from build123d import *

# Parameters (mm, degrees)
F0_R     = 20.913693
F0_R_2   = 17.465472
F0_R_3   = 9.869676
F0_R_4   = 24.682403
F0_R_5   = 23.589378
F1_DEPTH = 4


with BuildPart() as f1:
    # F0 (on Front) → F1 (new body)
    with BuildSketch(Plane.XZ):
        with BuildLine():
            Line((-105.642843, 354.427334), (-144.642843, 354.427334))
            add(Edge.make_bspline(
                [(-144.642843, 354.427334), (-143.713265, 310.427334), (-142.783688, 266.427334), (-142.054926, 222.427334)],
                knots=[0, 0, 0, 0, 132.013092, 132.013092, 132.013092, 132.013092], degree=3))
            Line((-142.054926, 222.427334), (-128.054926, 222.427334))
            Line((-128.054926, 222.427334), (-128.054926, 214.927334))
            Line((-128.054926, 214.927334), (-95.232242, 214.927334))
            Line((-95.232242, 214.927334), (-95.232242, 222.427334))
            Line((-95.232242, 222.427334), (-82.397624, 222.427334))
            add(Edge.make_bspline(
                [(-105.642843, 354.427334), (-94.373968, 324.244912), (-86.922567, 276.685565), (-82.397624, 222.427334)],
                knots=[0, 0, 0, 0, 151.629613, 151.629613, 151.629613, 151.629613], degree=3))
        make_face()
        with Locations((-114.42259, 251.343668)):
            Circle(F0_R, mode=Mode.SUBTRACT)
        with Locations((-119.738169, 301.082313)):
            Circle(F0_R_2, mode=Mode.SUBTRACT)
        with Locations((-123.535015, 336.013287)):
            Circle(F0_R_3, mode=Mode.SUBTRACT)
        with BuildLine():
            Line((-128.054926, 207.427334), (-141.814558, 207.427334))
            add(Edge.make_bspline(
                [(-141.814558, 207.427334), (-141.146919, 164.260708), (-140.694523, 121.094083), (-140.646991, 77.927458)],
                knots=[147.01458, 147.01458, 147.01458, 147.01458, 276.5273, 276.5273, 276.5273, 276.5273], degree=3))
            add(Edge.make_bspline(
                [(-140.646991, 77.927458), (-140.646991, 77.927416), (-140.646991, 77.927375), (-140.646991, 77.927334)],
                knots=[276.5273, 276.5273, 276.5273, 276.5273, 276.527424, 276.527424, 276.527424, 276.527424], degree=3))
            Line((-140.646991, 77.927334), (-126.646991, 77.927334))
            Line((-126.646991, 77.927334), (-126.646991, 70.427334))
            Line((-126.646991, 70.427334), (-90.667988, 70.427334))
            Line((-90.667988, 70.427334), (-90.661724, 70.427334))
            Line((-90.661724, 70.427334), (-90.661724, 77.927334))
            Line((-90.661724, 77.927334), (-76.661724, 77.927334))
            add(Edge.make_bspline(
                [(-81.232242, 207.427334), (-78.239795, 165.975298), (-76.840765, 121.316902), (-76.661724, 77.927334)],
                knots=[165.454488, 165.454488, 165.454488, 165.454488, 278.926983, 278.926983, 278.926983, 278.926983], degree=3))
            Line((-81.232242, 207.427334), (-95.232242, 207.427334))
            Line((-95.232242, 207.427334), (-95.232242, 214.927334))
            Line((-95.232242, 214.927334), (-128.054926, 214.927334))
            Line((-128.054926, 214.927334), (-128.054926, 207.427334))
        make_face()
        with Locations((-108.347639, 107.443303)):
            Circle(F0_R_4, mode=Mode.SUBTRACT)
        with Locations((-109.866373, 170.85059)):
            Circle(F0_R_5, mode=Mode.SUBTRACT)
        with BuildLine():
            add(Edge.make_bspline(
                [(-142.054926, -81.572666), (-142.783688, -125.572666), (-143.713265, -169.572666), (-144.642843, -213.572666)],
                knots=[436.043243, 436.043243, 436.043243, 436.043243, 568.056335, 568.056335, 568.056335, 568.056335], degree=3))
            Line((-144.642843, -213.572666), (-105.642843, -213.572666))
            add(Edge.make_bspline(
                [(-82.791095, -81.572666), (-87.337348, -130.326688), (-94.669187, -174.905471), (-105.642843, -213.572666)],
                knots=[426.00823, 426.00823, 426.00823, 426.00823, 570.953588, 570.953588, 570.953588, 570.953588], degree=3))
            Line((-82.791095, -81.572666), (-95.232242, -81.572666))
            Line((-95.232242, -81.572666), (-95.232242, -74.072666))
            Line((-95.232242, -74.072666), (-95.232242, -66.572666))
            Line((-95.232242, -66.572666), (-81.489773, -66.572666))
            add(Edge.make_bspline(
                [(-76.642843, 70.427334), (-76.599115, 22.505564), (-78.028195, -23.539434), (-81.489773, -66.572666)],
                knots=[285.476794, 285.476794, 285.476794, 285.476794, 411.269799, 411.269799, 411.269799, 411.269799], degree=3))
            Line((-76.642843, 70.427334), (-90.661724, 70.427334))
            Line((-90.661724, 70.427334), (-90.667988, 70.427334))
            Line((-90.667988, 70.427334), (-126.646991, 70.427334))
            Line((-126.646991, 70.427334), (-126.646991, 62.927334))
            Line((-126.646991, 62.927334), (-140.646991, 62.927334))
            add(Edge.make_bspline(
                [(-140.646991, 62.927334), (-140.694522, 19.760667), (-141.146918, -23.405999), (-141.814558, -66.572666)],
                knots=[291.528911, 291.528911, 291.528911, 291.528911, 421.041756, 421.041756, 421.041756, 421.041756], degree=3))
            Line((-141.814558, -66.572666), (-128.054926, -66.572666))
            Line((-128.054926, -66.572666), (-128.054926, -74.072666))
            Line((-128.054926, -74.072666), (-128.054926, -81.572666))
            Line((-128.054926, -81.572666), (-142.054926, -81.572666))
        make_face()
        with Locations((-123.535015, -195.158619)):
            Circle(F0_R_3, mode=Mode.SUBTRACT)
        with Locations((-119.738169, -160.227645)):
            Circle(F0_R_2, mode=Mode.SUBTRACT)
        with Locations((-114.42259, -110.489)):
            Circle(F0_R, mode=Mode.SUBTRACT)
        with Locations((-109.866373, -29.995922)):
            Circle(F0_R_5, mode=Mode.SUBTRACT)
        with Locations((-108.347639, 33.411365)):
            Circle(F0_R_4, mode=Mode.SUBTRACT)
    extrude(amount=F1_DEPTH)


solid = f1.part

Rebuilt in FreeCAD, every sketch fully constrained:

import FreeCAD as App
import Part
import Sketcher
from FreeCAD import Vector
Q = App.Units.Quantity

doc = App.newDocument("Part")
body = doc.addObject("PartDesign::Body", "Body")

sketch1 = doc.addObject("Sketcher::SketchObject", "Sketch")
body.addObject(sketch1)
sketch1.AttachmentSupport = (doc.XZ_Plane, [""])
sketch1.MapMode = "FlatFace"
sketch1.addGeometry([
    Part.LineSegment(Vector(-105.642843, 354.427334, 0), Vector(-144.642843, 354.427334, 0)),
    Part.BSplineCurve([Vector(-144.642843, 354.427334, 0), Vector(-143.713265, 310.427334, 0), Vector(-142.783688, 266.427334, 0), Vector(-142.054926, 222.427334, 0)], [4, 4], [0, 132.013092], False, 3, [1, 1, 1, 1], False),
    Part.LineSegment(Vector(-142.054926, 222.427334, 0), Vector(-128.054926, 222.427334, 0)),
    Part.LineSegment(Vector(-128.054926, 222.427334, 0), Vector(-128.054926, 207.427334, 0)),
    Part.LineSegment(Vector(-128.054926, 207.427334, 0), Vector(-141.814558, 207.427334, 0)),
    Part.BSplineCurve([Vector(-141.814558, 207.427334, 0), Vector(-141.146919, 164.260708, 0), Vector(-140.694523, 121.094083, 0), Vector(-140.646991, 77.927458, 0)], [4, 4], [147.01458, 276.5273], False, 3, [1, 1, 1, 1], False),
    Part.BSplineCurve([Vector(-140.646991, 77.927458, 0), Vector(-140.646991, 77.927416, 0), Vector(-140.646991, 77.927375, 0), Vector(-140.646991, 77.927334, 0)], [4, 4], [276.5273, 276.527424], False, 3, [1, 1, 1, 1], False),
    Part.LineSegment(Vector(-140.646991, 77.927334, 0), Vector(-126.646991, 77.927334, 0)),
    Part.LineSegment(Vector(-126.646991, 77.927334, 0), Vector(-126.646991, 62.927334, 0)),
    Part.LineSegment(Vector(-126.646991, 62.927334, 0), Vector(-140.646991, 62.927334, 0)),
    Part.BSplineCurve([Vector(-140.646991, 62.927334, 0), Vector(-140.694522, 19.760667, 0), Vector(-141.146918, -23.405999, 0), Vector(-141.814558, -66.572666, 0)], [4, 4], [291.528911, 421.041756], False, 3, [1, 1, 1, 1], False),
    Part.LineSegment(Vector(-141.814558, -66.572666, 0), Vector(-128.054926, -66.572666, 0)),
    Part.LineSegment(Vector(-128.054926, -66.572666, 0), Vector(-128.054926, -81.572666, 0)),
    Part.LineSegment(Vector(-128.054926, -81.572666, 0), Vector(-142.054926, -81.572666, 0)),
    Part.BSplineCurve([Vector(-142.054926, -81.572666, 0), Vector(-142.783688, -125.572666, 0), Vector(-143.713265, -169.572666, 0), Vector(-144.642843, -213.572666, 0)], [4, 4], [436.043243, 568.056335], False, 3, [1, 1, 1, 1], False),
    Part.LineSegment(Vector(-144.642843, -213.572666, 0), Vector(-105.642843, -213.572666, 0)),
    Part.BSplineCurve([Vector(-82.791095, -81.572666, 0), Vector(-87.337348, -130.326688, 0), Vector(-94.669187, -174.905471, 0), Vector(-105.642843, -213.572666, 0)], [4, 4], [426.00823, 570.953588], False, 3, [1, 1, 1, 1], False),
    Part.LineSegment(Vector(-82.791095, -81.572666, 0), Vector(-95.232242, -81.572666, 0)),
    Part.LineSegment(Vector(-95.232242, -81.572666, 0), Vector(-95.232242, -66.572666, 0)),
    Part.LineSegment(Vector(-95.232242, -66.572666, 0), Vector(-81.489773, -66.572666, 0)),
    Part.BSplineCurve([Vector(-76.642843, 70.427334, 0), Vector(-76.599115, 22.505564, 0), Vector(-78.028195, -23.539434, 0), Vector(-81.489773, -66.572666, 0)], [4, 4], [285.476794, 411.269799], False, 3, [1, 1, 1, 1], False),
    Part.LineSegment(Vector(-76.642843, 70.427334, 0), Vector(-90.661724, 70.427334, 0)),
    Part.LineSegment(Vector(-90.661724, 70.427334, 0), Vector(-90.661724, 77.927334, 0)),
    Part.LineSegment(Vector(-90.661724, 77.927334, 0), Vector(-76.661724, 77.927334, 0)),
    Part.BSplineCurve([Vector(-81.232242, 207.427334, 0), Vector(-78.239795, 165.975298, 0), Vector(-76.840765, 121.316902, 0), Vector(-76.661724, 77.927334, 0)], [4, 4], [165.454488, 278.926983], False, 3, [1, 1, 1, 1], False),
    Part.LineSegment(Vector(-81.232242, 207.427334, 0), Vector(-95.232242, 207.427334, 0)),
    Part.LineSegment(Vector(-95.232242, 207.427334, 0), Vector(-95.232242, 222.427334, 0)),
    Part.LineSegment(Vector(-95.232242, 222.427334, 0), Vector(-82.397624, 222.427334, 0)),
    Part.BSplineCurve([Vector(-105.642843, 354.427334, 0), Vector(-94.373968, 324.244912, 0), Vector(-86.922567, 276.685565, 0), Vector(-82.397624, 222.427334, 0)], [4, 4], [0, 151.629613], False, 3, [1, 1, 1, 1], False),
    Part.Circle(Vector(-123.535015, -195.158619, 0), Vector(0, 0, 1), 9.869676),
    Part.Circle(Vector(-119.738169, -160.227645, 0), Vector(0, 0, 1), 17.465472),
    Part.Circle(Vector(-114.42259, -110.489, 0), Vector(0, 0, 1), 20.913693),
    Part.Circle(Vector(-109.866373, -29.995922, 0), Vector(0, 0, 1), 23.589378),
    Part.Circle(Vector(-108.347639, 33.411365, 0), Vector(0, 0, 1), 24.682403),
    Part.Circle(Vector(-114.42259, 251.343668, 0), Vector(0, 0, 1), 20.913693),
    Part.Circle(Vector(-119.738169, 301.082313, 0), Vector(0, 0, 1), 17.465472),
    Part.Circle(Vector(-123.535015, 336.013287, 0), Vector(0, 0, 1), 9.869676),
    Part.Circle(Vector(-108.347639, 107.443303, 0), Vector(0, 0, 1), 24.682403),
    Part.Circle(Vector(-109.866373, 170.85059, 0), Vector(0, 0, 1), 23.589378),
], False)
sketch1.addConstraint([
    Sketcher.Constraint("Block", 1),
    Sketcher.Constraint("Block", 5),
    Sketcher.Constraint("Block", 6),
    Sketcher.Constraint("Block", 10),
    Sketcher.Constraint("Block", 14),
    Sketcher.Constraint("Block", 16),
    Sketcher.Constraint("Block", 20),
    Sketcher.Constraint("Block", 24),
    Sketcher.Constraint("Block", 28),
    Sketcher.Constraint("Coincident", 0, 2, 1, 1),
    Sketcher.Constraint("Coincident", 1, 2, 2, 1),
    Sketcher.Constraint("Coincident", 2, 2, 3, 1),
    Sketcher.Constraint("Coincident", 3, 2, 4, 1),
    Sketcher.Constraint("Coincident", 4, 2, 5, 1),
    Sketcher.Constraint("Coincident", 6, 2, 7, 1),
    Sketcher.Constraint("Coincident", 7, 2, 8, 1),
    Sketcher.Constraint("Coincident", 8, 2, 9, 1),
    Sketcher.Constraint("Coincident", 9, 2, 10, 1),
    Sketcher.Constraint("Coincident", 10, 2, 11, 1),
    Sketcher.Constraint("Coincident", 11, 2, 12, 1),
    Sketcher.Constraint("Coincident", 12, 2, 13, 1),
    Sketcher.Constraint("Coincident", 13, 2, 14, 1),
    Sketcher.Constraint("Coincident", 14, 2, 15, 1),
    Sketcher.Constraint("Coincident", 15, 2, 16, 2),
    Sketcher.Constraint("Coincident", 16, 1, 17, 1),
    Sketcher.Constraint("Coincident", 17, 2, 18, 1),
    Sketcher.Constraint("Coincident", 18, 2, 19, 1),
    Sketcher.Constraint("Coincident", 19, 2, 20, 2),
    Sketcher.Constraint("Coincident", 20, 1, 21, 1),
    Sketcher.Constraint("Coincident", 21, 2, 22, 1),
    Sketcher.Constraint("Coincident", 22, 2, 23, 1),
    Sketcher.Constraint("Coincident", 23, 2, 24, 2),
    Sketcher.Constraint("Coincident", 24, 1, 25, 1),
    Sketcher.Constraint("Coincident", 25, 2, 26, 1),
    Sketcher.Constraint("Coincident", 26, 2, 27, 1),
    Sketcher.Constraint("Coincident", 27, 2, 28, 2),
    Sketcher.Constraint("Coincident", 28, 1, 0, 1),
    Sketcher.Constraint("Horizontal", 2),
    Sketcher.Constraint("Vertical", 3),
    Sketcher.Constraint("Horizontal", 4),
    Sketcher.Constraint("Horizontal", 7),
    Sketcher.Constraint("Vertical", 8),
    Sketcher.Constraint("Horizontal", 9),
    Sketcher.Constraint("Horizontal", 11),
    Sketcher.Constraint("Vertical", 12),
    Sketcher.Constraint("Horizontal", 13),
    Sketcher.Constraint("Horizontal", 17),
    Sketcher.Constraint("Vertical", 18),
    Sketcher.Constraint("Horizontal", 19),
    Sketcher.Constraint("Horizontal", 21),
    Sketcher.Constraint("Vertical", 22),
    Sketcher.Constraint("Horizontal", 23),
    Sketcher.Constraint("Horizontal", 25),
    Sketcher.Constraint("Vertical", 26),
    Sketcher.Constraint("Horizontal", 27),
    Sketcher.Constraint("Equal", 31, 34),
    Sketcher.Constraint("Equal", 30, 35),
    Sketcher.Constraint("Equal", 29, 36),
    Sketcher.Constraint("Equal", 33, 37),
    Sketcher.Constraint("Equal", 32, 38),
    Sketcher.Constraint("Vertical", 31, 3, 34, 3),
    Sketcher.Constraint("Vertical", 30, 3, 35, 3),
    Sketcher.Constraint("Vertical", 29, 3, 36, 3),
    Sketcher.Constraint("Vertical", 33, 3, 37, 3),
    Sketcher.Constraint("Vertical", 32, 3, 38, 3),
    Sketcher.Constraint("Vertical", 3, 2, 11, 2),
    Sketcher.Constraint("Vertical", 18, 2, 25, 2),
    Sketcher.Constraint("Equal", 2, 7),
    Sketcher.Constraint("Equal", 13, 23),
    Sketcher.Constraint("Equal", 23, 25),
    Sketcher.Constraint("DistanceX", 2, 1, 2, 2, Q("14 mm")),
    Sketcher.Constraint("Diameter", 29, Q("19.739352 mm")),
    Sketcher.Constraint("Diameter", 30, Q("34.930944 mm")),
    Sketcher.Constraint("Diameter", 31, Q("41.827386 mm")),
    Sketcher.Constraint("Diameter", 32, Q("47.178756 mm")),
    Sketcher.Constraint("Diameter", 33, Q("49.364806 mm")),
    Sketcher.Constraint("DistanceY", 31, 3, -1, 1, Q("110.489 mm")),
    Sketcher.Constraint("DistanceX", 32, 3, 19, 2, Q("28.3766 mm")),
    Sketcher.Constraint("DistanceY", 29, 3, -1, 1, Q("195.158619 mm")),
    Sketcher.Constraint("DistanceX", 30, 3, -1, 1, Q("119.738169 mm")),
    Sketcher.Constraint("DistanceX", 31, 3, -1, 1, Q("114.42259 mm")),
    Sketcher.Constraint("DistanceY", 32, 3, -1, 1, Q("29.995922 mm")),
    Sketcher.Constraint("DistanceX", 33, 3, -1, 1, Q("108.347639 mm")),
    Sketcher.Constraint("DistanceY", -1, 1, 34, 3, Q("251.343668 mm")),
    Sketcher.Constraint("DistanceY", -1, 1, 38, 3, Q("170.85059 mm")),
    Sketcher.Constraint("DistanceY", 30, 3, 33, 3, Q("193.63901 mm")),
    Sketcher.Constraint("DistanceY", 33, 3, 35, 3, Q("267.670948 mm")),
    Sketcher.Constraint("DistanceY", 34, 3, 36, 3, Q("84.669619 mm")),
    Sketcher.Constraint("DistanceY", 33, 3, 36, 3, Q("302.601922 mm")),
    Sketcher.Constraint("DistanceY", 37, 3, 35, 3, Q("193.63901 mm")),
    Sketcher.Constraint("DistanceX", 2, 2, 36, 3, Q("4.519911 mm")),
])
pad1 = doc.addObject("PartDesign::Pad", "Pad")
body.addObject(pad1)
pad1.Profile = sketch1
pad1.Length = 4

doc.recompute()
